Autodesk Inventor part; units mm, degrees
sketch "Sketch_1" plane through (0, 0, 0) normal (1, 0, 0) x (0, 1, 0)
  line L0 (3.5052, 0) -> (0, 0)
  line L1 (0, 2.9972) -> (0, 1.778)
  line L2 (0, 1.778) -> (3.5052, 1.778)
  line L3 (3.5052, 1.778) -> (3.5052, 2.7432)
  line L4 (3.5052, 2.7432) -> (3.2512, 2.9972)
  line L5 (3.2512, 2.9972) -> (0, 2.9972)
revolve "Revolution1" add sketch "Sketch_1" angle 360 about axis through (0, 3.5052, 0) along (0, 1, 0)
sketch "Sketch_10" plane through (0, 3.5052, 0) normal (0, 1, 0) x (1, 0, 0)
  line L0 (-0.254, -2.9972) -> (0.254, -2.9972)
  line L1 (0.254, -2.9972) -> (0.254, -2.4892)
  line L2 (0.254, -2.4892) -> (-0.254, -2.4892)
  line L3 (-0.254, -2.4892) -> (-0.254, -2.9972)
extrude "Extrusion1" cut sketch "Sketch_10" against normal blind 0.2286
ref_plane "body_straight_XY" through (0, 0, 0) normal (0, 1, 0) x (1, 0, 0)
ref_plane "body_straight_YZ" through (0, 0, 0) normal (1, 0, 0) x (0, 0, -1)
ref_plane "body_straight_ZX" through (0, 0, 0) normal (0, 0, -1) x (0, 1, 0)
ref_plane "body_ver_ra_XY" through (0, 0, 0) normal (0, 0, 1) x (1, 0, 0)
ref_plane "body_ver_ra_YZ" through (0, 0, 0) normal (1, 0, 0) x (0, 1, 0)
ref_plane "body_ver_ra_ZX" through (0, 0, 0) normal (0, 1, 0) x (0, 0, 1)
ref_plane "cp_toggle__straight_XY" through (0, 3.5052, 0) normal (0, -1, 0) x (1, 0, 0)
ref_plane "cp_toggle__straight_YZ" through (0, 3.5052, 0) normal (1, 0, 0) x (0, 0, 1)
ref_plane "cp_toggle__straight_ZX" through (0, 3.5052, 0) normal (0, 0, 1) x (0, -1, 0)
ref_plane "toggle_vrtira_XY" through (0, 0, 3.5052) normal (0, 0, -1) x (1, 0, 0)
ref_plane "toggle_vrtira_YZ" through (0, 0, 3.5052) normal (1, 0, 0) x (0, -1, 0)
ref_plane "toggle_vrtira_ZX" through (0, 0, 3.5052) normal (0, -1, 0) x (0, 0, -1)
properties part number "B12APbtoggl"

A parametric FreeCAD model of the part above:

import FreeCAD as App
import Part
import Sketcher
Q = App.Units.Quantity

doc = App.newDocument("Part")
params = doc.addObject("Spreadsheet::Sheet", "Params")
for row, (alias, value) in enumerate([
    ("sketch1_width", "0.128 in"),
    ("sketch1_width2", "0.138 in"),
    ("sketch1_height", "0.048 in"),
    ("revolution_angle", "360 deg"),
    ("sketch2_width", "0.02 in"),
    ("pocket1_length", "0.009 in"),
], start=1):
    params.set(f"A{row}", alias)
    params.set(f"B{row}", "=" + value)
    params.setAlias(f"B{row}", alias)

body = doc.addObject("PartDesign::Body", "Body")

# Sketch on YZ plane
sketch1 = body.newObject("Sketcher::SketchObject", "Sketch")
sketch1.AttachmentSupport = (doc.getObject("YZ_Plane"), [""])
sketch1.MapMode = "FlatFace"
sketch1.addGeometry([
    Part.LineSegment(App.Vector(3.2512, 2.9972, 0), App.Vector(0, 2.9972, 0)),  # 0
    Part.LineSegment(App.Vector(0, 2.9972, 0), App.Vector(0, 1.778, 0)),  # 1
    Part.LineSegment(App.Vector(0, 1.778, 0), App.Vector(3.5052, 1.778, 0)),  # 2
    Part.LineSegment(App.Vector(3.5052, 1.778, 0), App.Vector(3.5052, 2.7432, 0)),  # 3
    Part.LineSegment(App.Vector(3.5052, 2.7432, 0), App.Vector(3.2512, 2.9972, 0)),  # 4
], False)
sketch1.addConstraint([
    Sketcher.Constraint("Coincident", 0, 2, 1, 1),
    Sketcher.Constraint("Coincident", 1, 2, 2, 1),
    Sketcher.Constraint("Coincident", 2, 2, 3, 1),
    Sketcher.Constraint("Coincident", 3, 2, 4, 1),
    Sketcher.Constraint("Coincident", 4, 2, 0, 1),
    Sketcher.Constraint("Horizontal", 0),
    Sketcher.Constraint("Vertical", 1),
    Sketcher.Constraint("Horizontal", 2),
    Sketcher.Constraint("Vertical", 3),
    Sketcher.Constraint("PointOnObject", 0, 2, -2),
    Sketcher.Constraint("Angle", 4, Q("135 deg")),
    Sketcher.Constraint("DistanceX", 0, 2, 0, 1, Q("0.128 in")),
    Sketcher.Constraint("DistanceX", 2, 1, 2, 2, Q("0.138 in")),
    Sketcher.Constraint("DistanceY", 1, 2, 1, 1, Q("0.048 in")),
    Sketcher.Constraint("DistanceY", -1, 1, 1, 2, Q("0.07 in")),
])
sketch1.setExpression("Constraints[11]", "Params.sketch1_width")
sketch1.setExpression("Constraints[12]", "Params.sketch1_width2")
sketch1.setExpression("Constraints[13]", "Params.sketch1_height")
revolution = body.newObject("PartDesign::Revolution", "Revolution")
revolution.Profile = sketch1
revolution.ReferenceAxis = (sketch1, ["H_Axis"])
revolution.setExpression("Angle", "Params.revolution_angle")

# Sketch on XZ plane
sketch2 = body.newObject("Sketcher::SketchObject", "Sketch001")
sketch2.AttachmentSupport = (doc.getObject("XZ_Plane"), [""])
sketch2.MapMode = "FlatFace"
sketch2.AttachmentOffset = App.Placement(App.Vector(0, 0, -0.138 * 25.4), App.Rotation())
sketch2.addGeometry([
    Part.LineSegment(App.Vector(-0.254, 2.4892, 0), App.Vector(-0.254, 2.9972, 0)),
    Part.LineSegment(App.Vector(-0.254, 2.9972, 0), App.Vector(0.254, 2.9972, 0)),
    Part.LineSegment(App.Vector(0.254, 2.9972, 0), App.Vector(0.254, 2.4892, 0)),
    Part.LineSegment(App.Vector(0.254, 2.4892, 0), App.Vector(-0.254, 2.4892, 0)),
], False)
sketch2.addConstraint([
    Sketcher.Constraint("Coincident", 0, 2, 1, 1),
    Sketcher.Constraint("Coincident", 1, 2, 2, 1),
    Sketcher.Constraint("Coincident", 2, 2, 3, 1),
    Sketcher.Constraint("Coincident", 3, 2, 0, 1),
    Sketcher.Constraint("Vertical", 0),
    Sketcher.Constraint("Horizontal", 1),
    Sketcher.Constraint("Vertical", 2),
    Sketcher.Constraint("Horizontal", 3),
    Sketcher.Constraint("Equal", 3, 0),
    Sketcher.Constraint("DistanceX", 1, 1, 1, 2, Q("0.02 in")),
    Sketcher.Constraint("DistanceX", 0, 2, -1, 1, Q("0.01 in")),
    Sketcher.Constraint("DistanceY", -1, 1, 0, 2, Q("0.118 in")),
])
sketch2.setExpression("Constraints[9]", "Params.sketch2_width")
pocket1 = body.newObject("PartDesign::Pocket", "Pocket")
pocket1.Profile = sketch2
pocket1.setExpression("Length", "Params.pocket1_length")
pocket1.Reversed = True

doc.recompute()
